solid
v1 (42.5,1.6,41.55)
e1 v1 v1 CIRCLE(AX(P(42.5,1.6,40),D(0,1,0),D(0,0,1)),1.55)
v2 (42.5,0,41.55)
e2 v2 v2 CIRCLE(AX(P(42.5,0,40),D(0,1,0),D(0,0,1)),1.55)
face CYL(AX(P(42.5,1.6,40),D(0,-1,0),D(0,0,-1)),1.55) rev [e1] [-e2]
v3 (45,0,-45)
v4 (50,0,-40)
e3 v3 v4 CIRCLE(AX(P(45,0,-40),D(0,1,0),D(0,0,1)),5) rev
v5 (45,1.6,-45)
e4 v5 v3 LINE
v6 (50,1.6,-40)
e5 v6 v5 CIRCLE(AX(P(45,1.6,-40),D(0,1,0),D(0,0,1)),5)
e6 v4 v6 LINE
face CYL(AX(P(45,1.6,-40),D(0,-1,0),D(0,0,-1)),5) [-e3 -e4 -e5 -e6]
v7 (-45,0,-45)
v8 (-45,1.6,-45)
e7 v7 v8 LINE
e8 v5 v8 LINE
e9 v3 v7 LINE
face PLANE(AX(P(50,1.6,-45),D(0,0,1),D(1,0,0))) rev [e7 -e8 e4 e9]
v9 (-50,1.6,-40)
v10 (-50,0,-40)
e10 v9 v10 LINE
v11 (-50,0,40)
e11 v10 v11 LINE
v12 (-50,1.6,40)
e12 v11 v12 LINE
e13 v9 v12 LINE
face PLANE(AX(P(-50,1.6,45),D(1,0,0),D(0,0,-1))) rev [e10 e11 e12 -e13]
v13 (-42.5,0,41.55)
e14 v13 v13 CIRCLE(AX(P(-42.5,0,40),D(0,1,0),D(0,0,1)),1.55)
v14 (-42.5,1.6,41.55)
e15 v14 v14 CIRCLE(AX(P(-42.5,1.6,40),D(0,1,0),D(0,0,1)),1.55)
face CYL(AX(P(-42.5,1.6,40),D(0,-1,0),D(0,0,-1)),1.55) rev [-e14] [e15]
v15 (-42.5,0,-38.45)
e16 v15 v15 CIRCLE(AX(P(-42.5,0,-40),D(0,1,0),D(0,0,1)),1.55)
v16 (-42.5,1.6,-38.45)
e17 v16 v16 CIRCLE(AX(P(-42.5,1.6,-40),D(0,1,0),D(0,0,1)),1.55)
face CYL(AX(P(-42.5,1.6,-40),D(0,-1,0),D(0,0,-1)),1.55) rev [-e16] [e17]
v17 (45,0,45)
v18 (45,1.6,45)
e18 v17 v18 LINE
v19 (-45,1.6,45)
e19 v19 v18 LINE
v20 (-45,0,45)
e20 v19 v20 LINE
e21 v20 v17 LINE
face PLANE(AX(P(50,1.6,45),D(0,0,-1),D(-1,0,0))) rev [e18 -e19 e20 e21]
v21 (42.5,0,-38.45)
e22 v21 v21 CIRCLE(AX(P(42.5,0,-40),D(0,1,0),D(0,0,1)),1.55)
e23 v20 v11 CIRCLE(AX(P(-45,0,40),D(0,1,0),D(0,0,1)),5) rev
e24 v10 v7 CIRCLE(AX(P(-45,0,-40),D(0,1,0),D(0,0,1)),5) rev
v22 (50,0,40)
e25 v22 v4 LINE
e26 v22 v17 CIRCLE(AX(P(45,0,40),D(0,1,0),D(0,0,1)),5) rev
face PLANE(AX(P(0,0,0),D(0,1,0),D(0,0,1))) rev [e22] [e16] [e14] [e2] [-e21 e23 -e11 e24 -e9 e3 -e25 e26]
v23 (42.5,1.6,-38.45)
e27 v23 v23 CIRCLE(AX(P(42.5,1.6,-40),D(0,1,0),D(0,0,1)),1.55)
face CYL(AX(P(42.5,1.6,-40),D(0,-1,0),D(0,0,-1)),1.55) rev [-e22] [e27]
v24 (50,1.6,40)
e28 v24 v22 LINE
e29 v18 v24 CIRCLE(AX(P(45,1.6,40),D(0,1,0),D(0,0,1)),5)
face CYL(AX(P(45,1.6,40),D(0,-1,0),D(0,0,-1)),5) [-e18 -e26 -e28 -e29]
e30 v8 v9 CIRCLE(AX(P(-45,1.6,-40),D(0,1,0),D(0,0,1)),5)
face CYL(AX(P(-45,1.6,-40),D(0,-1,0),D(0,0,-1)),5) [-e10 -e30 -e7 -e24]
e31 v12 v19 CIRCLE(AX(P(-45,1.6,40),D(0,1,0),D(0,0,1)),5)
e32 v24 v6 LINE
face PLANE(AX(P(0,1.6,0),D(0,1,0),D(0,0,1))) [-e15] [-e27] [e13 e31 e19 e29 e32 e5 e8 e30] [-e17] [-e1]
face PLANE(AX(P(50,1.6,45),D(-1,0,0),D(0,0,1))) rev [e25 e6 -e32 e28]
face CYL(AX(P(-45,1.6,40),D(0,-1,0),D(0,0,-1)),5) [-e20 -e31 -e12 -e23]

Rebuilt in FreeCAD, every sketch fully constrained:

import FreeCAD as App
import Part
import Sketcher


def edges_at(feature, points):
    """Names of the edges that pass closest to the given points."""
    edges = feature.Shape.Edges
    near = lambda p: min(range(len(edges)), key=lambda i: edges[i].distToShape(Part.Vertex(*p))[0])
    return sorted({f"Edge{near(p) + 1}" for p in points})


def add_polygon(sketch, points):
    """Adds a closed chain of lines whose ends are joined by coincident constraints."""
    first, n = sketch.GeometryCount, len(points)
    for a, b in zip(points, points[1:] + points[:1]):
        sketch.addGeometry(Part.LineSegment(App.Vector(*a, 0), App.Vector(*b, 0)), False)
    for i in range(n):
        sketch.addConstraint(Sketcher.Constraint("Coincident", first + i, 2, first + (i + 1) % n, 1))

doc = App.newDocument("Part")
body = doc.addObject("PartDesign::Body", "Body")

# Sketch on XZ plane
sketch1 = body.newObject("Sketcher::SketchObject", "Sketch")
sketch1.AttachmentSupport = (doc.getObject("XZ_Plane"), [""])
sketch1.MapMode = "FlatFace"
add_polygon(sketch1, [(-50, -45), (-50, 45), (50, 45), (50, -45)])  # lines 0-3
sketch1.addGeometry(Part.Circle(App.Vector(-42.5, 40, 0), App.Vector(0, 0, 1), 1.6), False)  # 4
sketch1.addGeometry(Part.Circle(App.Vector(42.5, 40, 0), App.Vector(0, 0, 1), 1.6), False)  # 5
sketch1.addGeometry(Part.Circle(App.Vector(-42.5, -40, 0), App.Vector(0, 0, 1), 1.6), False)  # 6
sketch1.addGeometry(Part.Circle(App.Vector(42.5, -40, 0), App.Vector(0, 0, 1), 1.6), False)  # 7
sketch1.addConstraint([
    Sketcher.Constraint("Vertical", 0),
    Sketcher.Constraint("Horizontal", 1),
    Sketcher.Constraint("Vertical", 2),
    Sketcher.Constraint("Horizontal", 3),
    Sketcher.Constraint("Equal", 4, 5),
    Sketcher.Constraint("Equal", 5, 6),
    Sketcher.Constraint("Equal", 6, 7),
    Sketcher.Constraint("Symmetric", 5, 3, 6, 3, -1, 1),
    Sketcher.Constraint("Symmetric", 4, 3, 7, 3, -1, 1),
    Sketcher.Constraint("Symmetric", 0, 2, 2, 2, -1, 1),
    Sketcher.Constraint("Symmetric", 4, 3, 5, 3, -2),
    Sketcher.Constraint("Diameter", 4, 3.1),
    Sketcher.Constraint("DistanceX", 1, 1, 1, 2, 100.0),
    Sketcher.Constraint("DistanceY", 0, 1, 0, 2, 90.0),
    Sketcher.Constraint("DistanceY", -1, 1, 4, 3, 40.0),
    Sketcher.Constraint("DistanceX", 4, 3, 5, 3, 85.0),
])
pad1 = body.newObject("PartDesign::Pad", "Pad")
pad1.Profile = sketch1
pad1.Length = 1.6
pad1.Reversed = True
doc.recompute()

fillet = body.newObject("PartDesign::Fillet", "Fillet")
fillet.Base = (pad1, edges_at(pad1, [
    (-50, 0.8, -45),
    (50, 0.8, -45),
    (50, 0.8, 45),
    (-50, 0.8, 45),
]))
fillet.Radius = 5

doc.recompute()
